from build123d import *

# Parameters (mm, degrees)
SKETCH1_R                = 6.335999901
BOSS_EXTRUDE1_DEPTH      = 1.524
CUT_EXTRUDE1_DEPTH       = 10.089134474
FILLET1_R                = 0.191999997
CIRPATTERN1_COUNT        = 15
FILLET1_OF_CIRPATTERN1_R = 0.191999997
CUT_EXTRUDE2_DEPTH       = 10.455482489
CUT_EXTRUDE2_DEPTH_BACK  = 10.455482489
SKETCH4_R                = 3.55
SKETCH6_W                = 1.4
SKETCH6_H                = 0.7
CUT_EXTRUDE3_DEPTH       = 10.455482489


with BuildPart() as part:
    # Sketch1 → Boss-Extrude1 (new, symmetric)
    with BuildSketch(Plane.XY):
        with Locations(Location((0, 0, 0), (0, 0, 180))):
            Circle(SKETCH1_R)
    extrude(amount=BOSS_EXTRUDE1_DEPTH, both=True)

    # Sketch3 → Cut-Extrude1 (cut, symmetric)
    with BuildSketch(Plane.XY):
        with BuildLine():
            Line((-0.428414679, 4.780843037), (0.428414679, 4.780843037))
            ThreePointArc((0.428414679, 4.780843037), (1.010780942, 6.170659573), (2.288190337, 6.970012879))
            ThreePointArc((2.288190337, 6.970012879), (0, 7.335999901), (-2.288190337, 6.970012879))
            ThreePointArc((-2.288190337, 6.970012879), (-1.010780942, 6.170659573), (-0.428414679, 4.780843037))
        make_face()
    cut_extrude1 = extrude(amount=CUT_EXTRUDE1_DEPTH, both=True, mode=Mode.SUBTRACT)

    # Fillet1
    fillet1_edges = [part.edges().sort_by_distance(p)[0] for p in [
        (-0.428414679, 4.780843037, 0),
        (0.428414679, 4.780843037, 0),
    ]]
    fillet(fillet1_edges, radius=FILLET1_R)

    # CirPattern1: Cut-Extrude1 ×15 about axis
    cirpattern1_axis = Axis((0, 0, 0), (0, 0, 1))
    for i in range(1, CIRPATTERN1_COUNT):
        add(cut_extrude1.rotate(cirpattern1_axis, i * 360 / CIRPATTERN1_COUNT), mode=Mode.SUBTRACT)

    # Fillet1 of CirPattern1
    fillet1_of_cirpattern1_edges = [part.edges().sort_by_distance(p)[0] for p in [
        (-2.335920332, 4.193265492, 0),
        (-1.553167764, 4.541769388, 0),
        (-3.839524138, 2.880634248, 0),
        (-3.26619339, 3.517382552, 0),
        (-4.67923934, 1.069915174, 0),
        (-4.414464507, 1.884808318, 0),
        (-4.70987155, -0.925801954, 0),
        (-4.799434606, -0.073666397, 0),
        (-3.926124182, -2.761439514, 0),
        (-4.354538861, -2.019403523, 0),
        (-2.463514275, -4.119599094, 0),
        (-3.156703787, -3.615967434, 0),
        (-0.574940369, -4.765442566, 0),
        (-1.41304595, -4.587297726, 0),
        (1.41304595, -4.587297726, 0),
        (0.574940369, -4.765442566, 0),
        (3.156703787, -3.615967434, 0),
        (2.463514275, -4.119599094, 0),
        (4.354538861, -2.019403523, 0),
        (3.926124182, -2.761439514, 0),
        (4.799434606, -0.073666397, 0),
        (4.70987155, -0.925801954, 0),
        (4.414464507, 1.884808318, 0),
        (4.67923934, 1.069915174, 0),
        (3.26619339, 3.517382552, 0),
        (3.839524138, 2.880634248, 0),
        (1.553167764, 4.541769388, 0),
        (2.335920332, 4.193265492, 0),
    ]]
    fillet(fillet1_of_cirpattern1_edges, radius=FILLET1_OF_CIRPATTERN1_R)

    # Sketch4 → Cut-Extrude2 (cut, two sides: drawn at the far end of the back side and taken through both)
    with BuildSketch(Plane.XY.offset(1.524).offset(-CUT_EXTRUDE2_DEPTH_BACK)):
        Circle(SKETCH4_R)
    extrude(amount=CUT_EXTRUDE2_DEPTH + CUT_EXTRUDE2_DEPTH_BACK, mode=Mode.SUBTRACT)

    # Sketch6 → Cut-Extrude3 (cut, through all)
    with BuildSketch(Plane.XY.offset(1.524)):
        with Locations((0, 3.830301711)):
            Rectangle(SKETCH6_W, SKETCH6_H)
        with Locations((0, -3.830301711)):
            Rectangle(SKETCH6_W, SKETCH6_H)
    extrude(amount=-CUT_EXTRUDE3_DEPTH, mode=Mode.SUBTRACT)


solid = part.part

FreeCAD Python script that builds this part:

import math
import FreeCAD as App
import Part
import Sketcher

V = App.Vector


def edges_at(feature, points):
    """Names of the edges that pass closest to the given points."""
    edges = feature.Shape.Edges
    near = lambda p: min(range(len(edges)), key=lambda i: edges[i].distToShape(Part.Vertex(*p))[0])
    return sorted({f"Edge{near(p) + 1}" for p in points})


def add_polygon(sketch, points):
    """Adds a closed chain of lines whose ends are joined by coincident constraints."""
    first, n = sketch.GeometryCount, len(points)
    for a, b in zip(points, points[1:] + points[:1]):
        sketch.addGeometry(Part.LineSegment(App.Vector(*a, 0), App.Vector(*b, 0)), False)
    for i in range(n):
        sketch.addConstraint(Sketcher.Constraint("Coincident", first + i, 2, first + (i + 1) % n, 1))

doc = App.newDocument("Part")
body = doc.addObject("PartDesign::Body", "Body")

# Sketch on XY plane
sketch1 = doc.addObject("Sketcher::SketchObject", "Sketch")
body.addObject(sketch1)
sketch1.AttachmentSupport = (doc.XY_Plane, [""])
sketch1.MapMode = "FlatFace"
sketch1.addGeometry(Part.Circle(V(0, 0, 0), V(0, 0, 1), 6), False)
sketch1.addConstraint([
    Sketcher.Constraint("Coincident", 0, 3, -1, 1),
    Sketcher.Constraint("Diameter", 0, 12.672),
])
pad1 = doc.addObject("PartDesign::Pad", "Pad")
body.addObject(pad1)
pad1.Profile = sketch1
pad1.Length = 3.048
pad1.Midplane = True

# Sketch on XY plane
sketch2 = doc.addObject("Sketcher::SketchObject", "Sketch001")
body.addObject(sketch2)
sketch2.AttachmentSupport = (doc.XY_Plane, [""])
sketch2.MapMode = "FlatFace"
sketch2.addGeometry([
    Part.LineSegment(V(-0.4, 4.8, 0), V(0.4, 4.8, 0)),
    Part.ArcOfCircle(Part.Circle(V(2.9, 4.6, 0), V(0, 0, 1), 2.5), math.radians(104), math.radians(175)),
    Part.ArcOfCircle(Part.Circle(V(0, 0, 0), V(0, 0, 1), 7.3), math.radians(72), math.radians(108)),
    Part.ArcOfCircle(Part.Circle(V(-2.9, 4.6, 0), V(0, 0, 1), 2.5), math.radians(5), math.radians(76)),
], False)
sketch2.addConstraint([
    Sketcher.Constraint("Coincident", 0, 2, 1, 2),
    Sketcher.Constraint("Coincident", 1, 1, 2, 1),
    Sketcher.Constraint("Coincident", 2, 2, 3, 2),
    Sketcher.Constraint("Coincident", 3, 1, 0, 1),
    Sketcher.Constraint("Horizontal", 0),
    Sketcher.Constraint("Coincident", 2, 3, -1, 1),
    Sketcher.Constraint("Equal", 1, 3),
    Sketcher.Constraint("Symmetric", 1, 3, 3, 3, -2),
    Sketcher.Constraint("Radius", 2, 7.336),
    Sketcher.Constraint("Radius", 1, 2.489865),
    Sketcher.Constraint("DistanceX", 0, 1, 0, 2, 0.856829),
    Sketcher.Constraint("DistanceX", -1, 1, 1, 1, 2.28819),
    Sketcher.Constraint("DistanceX", 0, 2, 1, 3, 2.479928),
])
pocket1 = doc.addObject("PartDesign::Pocket", "Pocket")
body.addObject(pocket1)
pocket1.Profile = sketch2
pocket1.Length = 20.178269
pocket1.Midplane = True
doc.recompute()

fillet = doc.addObject("PartDesign::Fillet", "Fillet")
body.addObject(fillet)
fillet.Base = (pocket1, edges_at(pocket1, [(-0.428, 4.781, 0), (0.428, 4.781, 0)]))
fillet.Radius = 0.192
doc.recompute()

polarpattern = doc.addObject("PartDesign::PolarPattern", "PolarPattern")
body.addObject(polarpattern)
polarpattern.Originals = [pocket1]
polarpattern.Axis = (doc.Z_Axis, [""])
polarpattern.Angle = 360
polarpattern.Occurrences = 15
body.Tip = polarpattern
doc.recompute()

fillet2 = doc.addObject("PartDesign::Fillet", "Fillet001")
body.addObject(fillet2)
fillet2.Base = (polarpattern, edges_at(polarpattern, [
    (-2.336, 4.193, 0),
    (-1.553, 4.542, 0),
    (-3.84, 2.881, 0),
    (-3.266, 3.517, 0),
    (-4.679, 1.07, 0),
    (-4.414, 1.885, 0),
    (-4.71, -0.926, 0),
    (-4.799, -0.074, 0),
    (-3.926, -2.761, 0),
    (-4.355, -2.019, 0),
    (-2.464, -4.12, 0),
    (-3.157, -3.616, 0),
    (-0.575, -4.765, 0),
    (-1.413, -4.587, 0),
    (1.413, -4.587, 0),
    (0.575, -4.765, 0),
    (3.157, -3.616, 0),
    (2.464, -4.12, 0),
    (4.355, -2.019, 0),
    (3.926, -2.761, 0),
    (4.799, -0.074, 0),
    (4.71, -0.926, 0),
    (4.414, 1.885, 0),
    (4.679, 1.07, 0),
    (3.266, 3.517, 0),
    (3.84, 2.881, 0),
    (1.553, 4.542, 0),
    (2.336, 4.193, 0),
]))
fillet2.Radius = 0.192

# Sketch on XY plane
sketch3 = doc.addObject("Sketcher::SketchObject", "Sketch002")
body.addObject(sketch3)
sketch3.AttachmentSupport = (doc.XY_Plane, [""])
sketch3.MapMode = "FlatFace"
sketch3.AttachmentOffset = App.Placement(V(0, 0, 1.524), App.Rotation())
sketch3.addGeometry(Part.Circle(V(0, 0, 0), V(0, 0, 1), 3.5), False)
sketch3.addConstraint([
    Sketcher.Constraint("Coincident", 0, 3, -1, 1),
    Sketcher.Constraint("Diameter", 0, 7.1),
])
pocket2 = doc.addObject("PartDesign::Pocket", "Pocket001")
body.addObject(pocket2)
pocket2.Profile = sketch3
pocket2.Type = "ThroughAll"
pocket2.Midplane = True

# Sketch on XY plane
sketch4 = doc.addObject("Sketcher::SketchObject", "Sketch003")
body.addObject(sketch4)
sketch4.AttachmentSupport = (doc.XY_Plane, [""])
sketch4.MapMode = "FlatFace"
sketch4.AttachmentOffset = App.Placement(V(0, 0, 1.524), App.Rotation())
add_polygon(sketch4, [(-0.7, 4.2), (-0.7, 3.5), (0.7, 3.5), (0.7, 4.2)])  # lines 0-3
add_polygon(sketch4, [(-0.7, -3.5), (-0.7, -4.2), (0.7, -4.2), (0.7, -3.5)])  # lines 4-7
sketch4.addConstraint([
    Sketcher.Constraint("Vertical", 0),
    Sketcher.Constraint("Horizontal", 1),
    Sketcher.Constraint("Vertical", 2),
    Sketcher.Constraint("Horizontal", 3),
    Sketcher.Constraint("Vertical", 4),
    Sketcher.Constraint("Horizontal", 5),
    Sketcher.Constraint("Vertical", 6),
    Sketcher.Constraint("Horizontal", 7),
    Sketcher.Constraint("Symmetric", 2, 2, 4, 2, -1, 1),
    Sketcher.Constraint("Symmetric", 0, 2, 6, 2, -1, 1),
    Sketcher.Constraint("Vertical", 3, 2, 4, 2),
    Sketcher.Constraint("DistanceX", 1, 1, 1, 2, 1.4),
    Sketcher.Constraint("DistanceY", 0, 2, 0, 1, 0.7),
    Sketcher.Constraint("DistanceY", -1, 1, 0, 2, 3.480302),
])
pocket3 = doc.addObject("PartDesign::Pocket", "Pocket002")
body.addObject(pocket3)
pocket3.Profile = sketch4
pocket3.Type = "ThroughAll"

doc.recompute()
